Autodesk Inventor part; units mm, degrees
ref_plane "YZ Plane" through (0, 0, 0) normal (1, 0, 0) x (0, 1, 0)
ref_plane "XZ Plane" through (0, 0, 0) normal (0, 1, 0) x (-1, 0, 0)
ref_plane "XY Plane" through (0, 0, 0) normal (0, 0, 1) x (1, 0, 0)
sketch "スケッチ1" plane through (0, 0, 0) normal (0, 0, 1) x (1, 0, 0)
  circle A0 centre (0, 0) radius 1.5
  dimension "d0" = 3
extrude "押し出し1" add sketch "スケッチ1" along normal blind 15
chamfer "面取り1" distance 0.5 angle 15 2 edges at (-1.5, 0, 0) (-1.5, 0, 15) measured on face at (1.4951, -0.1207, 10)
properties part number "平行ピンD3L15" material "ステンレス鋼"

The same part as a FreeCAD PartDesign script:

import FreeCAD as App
import Part
import Sketcher


def edges_at(feature, points):
    """Names of the edges that pass closest to the given points."""
    edges = feature.Shape.Edges
    near = lambda p: min(range(len(edges)), key=lambda i: edges[i].distToShape(Part.Vertex(*p))[0])
    return sorted({f"Edge{near(p) + 1}" for p in points})

doc = App.newDocument("Part")
body = doc.addObject("PartDesign::Body", "Body")

# Sketch on XY plane
sketch1 = doc.addObject("Sketcher::SketchObject", "Sketch")
body.addObject(sketch1)
sketch1.AttachmentSupport = (doc.XY_Plane, [""])
sketch1.MapMode = "FlatFace"
sketch1.addGeometry(Part.Circle(App.Vector(0, 0, 0), App.Vector(0, 0, 1), 1.5), False)
sketch1.addConstraint(Sketcher.Constraint("Coincident", 0, 3, -1, 1))
sketch1.addConstraint(Sketcher.Constraint("Diameter", 0, 3.0))
pad1 = doc.addObject("PartDesign::Pad", "Pad")
body.addObject(pad1)
pad1.Profile = sketch1
pad1.Length = 15
doc.recompute()

chamfer = doc.addObject("PartDesign::Chamfer", "Chamfer")
body.addObject(chamfer)
chamfer.Base = (pad1, edges_at(pad1, [(-1.5, 0, 0), (-1.5, 0, 15)]))
chamfer.ChamferType = "Distance and Angle"
chamfer.Size = 0.5
chamfer.Angle = 15

doc.recompute()
